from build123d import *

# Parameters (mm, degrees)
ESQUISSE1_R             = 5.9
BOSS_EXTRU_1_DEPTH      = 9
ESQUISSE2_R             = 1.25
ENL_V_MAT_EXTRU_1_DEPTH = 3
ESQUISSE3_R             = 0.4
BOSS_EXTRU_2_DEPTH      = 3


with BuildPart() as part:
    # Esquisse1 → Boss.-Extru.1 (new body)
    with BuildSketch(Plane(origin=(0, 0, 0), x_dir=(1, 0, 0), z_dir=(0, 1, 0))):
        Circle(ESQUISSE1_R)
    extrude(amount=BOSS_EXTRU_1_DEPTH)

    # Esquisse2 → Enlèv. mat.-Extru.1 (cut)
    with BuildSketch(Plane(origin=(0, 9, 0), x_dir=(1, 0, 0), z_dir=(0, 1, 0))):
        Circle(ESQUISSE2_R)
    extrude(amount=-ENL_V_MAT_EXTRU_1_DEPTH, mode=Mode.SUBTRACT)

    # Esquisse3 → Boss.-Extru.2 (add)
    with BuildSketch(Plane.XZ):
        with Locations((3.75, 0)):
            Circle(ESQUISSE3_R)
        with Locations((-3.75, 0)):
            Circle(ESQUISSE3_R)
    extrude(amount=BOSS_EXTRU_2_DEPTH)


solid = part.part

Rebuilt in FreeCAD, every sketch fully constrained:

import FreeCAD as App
import Part
import Sketcher
from FreeCAD import Vector
Q = App.Units.Quantity

doc = App.newDocument("Part")
body = doc.addObject("PartDesign::Body", "Body")

sketch1 = body.newObject("Sketcher::SketchObject", "Sketch")
sketch1.AttachmentSupport = (doc.getObject("XZ_Plane"), [""])
sketch1.MapMode = "FlatFace"
sketch1.addGeometry(Part.Circle(Vector(0, 0, 0), Vector(0, 0, 1), 6), False)
sketch1.addConstraint(Sketcher.Constraint("Coincident", 0, 3, -1, 1))
sketch1.addConstraint(Sketcher.Constraint("Diameter", 0, Q("11.8 mm")))
pad1 = body.newObject("PartDesign::Pad", "Pad")
pad1.Profile = sketch1
pad1.Length = 9
pad1.Reversed = True

sketch2 = body.newObject("Sketcher::SketchObject", "Sketch001")
sketch2.AttachmentSupport = (doc.getObject("XZ_Plane"), [""])
sketch2.MapMode = "FlatFace"
sketch2.AttachmentOffset = App.Placement(Vector(0, 0, -9), App.Rotation())
sketch2.addGeometry(Part.Circle(Vector(0, 0, 0), Vector(0, 0, 1), 1.2), False)
sketch2.addConstraint(Sketcher.Constraint("Coincident", 0, 3, -1, 1))
sketch2.addConstraint(Sketcher.Constraint("Diameter", 0, Q("2.5 mm")))
pocket1 = body.newObject("PartDesign::Pocket", "Pocket")
pocket1.Profile = sketch2
pocket1.Length = 3
pocket1.Reversed = True

sketch3 = body.newObject("Sketcher::SketchObject", "Sketch002")
sketch3.AttachmentSupport = (doc.getObject("XZ_Plane"), [""])
sketch3.MapMode = "FlatFace"
sketch3.addGeometry(Part.Circle(Vector(3.75, 0, 0), Vector(0, 0, 1), 0.4), False)
sketch3.addGeometry(Part.Circle(Vector(-3.75, 0, 0), Vector(0, 0, 1), 0.4), False)
sketch3.addConstraint(Sketcher.Constraint("Equal", 0, 1))
sketch3.addConstraint(Sketcher.Constraint("Symmetric", 0, 3, 1, 3, -1, 1))
sketch3.addConstraint(Sketcher.Constraint("PointOnObject", 0, 3, -1))
sketch3.addConstraint(Sketcher.Constraint("Diameter", 0, Q("0.8 mm")))
sketch3.addConstraint(Sketcher.Constraint("DistanceX", 1, 3, 0, 3, Q("7.5 mm")))
pad2 = body.newObject("PartDesign::Pad", "Pad001")
pad2.Profile = sketch3
pad2.Length = 3

doc.recompute()
